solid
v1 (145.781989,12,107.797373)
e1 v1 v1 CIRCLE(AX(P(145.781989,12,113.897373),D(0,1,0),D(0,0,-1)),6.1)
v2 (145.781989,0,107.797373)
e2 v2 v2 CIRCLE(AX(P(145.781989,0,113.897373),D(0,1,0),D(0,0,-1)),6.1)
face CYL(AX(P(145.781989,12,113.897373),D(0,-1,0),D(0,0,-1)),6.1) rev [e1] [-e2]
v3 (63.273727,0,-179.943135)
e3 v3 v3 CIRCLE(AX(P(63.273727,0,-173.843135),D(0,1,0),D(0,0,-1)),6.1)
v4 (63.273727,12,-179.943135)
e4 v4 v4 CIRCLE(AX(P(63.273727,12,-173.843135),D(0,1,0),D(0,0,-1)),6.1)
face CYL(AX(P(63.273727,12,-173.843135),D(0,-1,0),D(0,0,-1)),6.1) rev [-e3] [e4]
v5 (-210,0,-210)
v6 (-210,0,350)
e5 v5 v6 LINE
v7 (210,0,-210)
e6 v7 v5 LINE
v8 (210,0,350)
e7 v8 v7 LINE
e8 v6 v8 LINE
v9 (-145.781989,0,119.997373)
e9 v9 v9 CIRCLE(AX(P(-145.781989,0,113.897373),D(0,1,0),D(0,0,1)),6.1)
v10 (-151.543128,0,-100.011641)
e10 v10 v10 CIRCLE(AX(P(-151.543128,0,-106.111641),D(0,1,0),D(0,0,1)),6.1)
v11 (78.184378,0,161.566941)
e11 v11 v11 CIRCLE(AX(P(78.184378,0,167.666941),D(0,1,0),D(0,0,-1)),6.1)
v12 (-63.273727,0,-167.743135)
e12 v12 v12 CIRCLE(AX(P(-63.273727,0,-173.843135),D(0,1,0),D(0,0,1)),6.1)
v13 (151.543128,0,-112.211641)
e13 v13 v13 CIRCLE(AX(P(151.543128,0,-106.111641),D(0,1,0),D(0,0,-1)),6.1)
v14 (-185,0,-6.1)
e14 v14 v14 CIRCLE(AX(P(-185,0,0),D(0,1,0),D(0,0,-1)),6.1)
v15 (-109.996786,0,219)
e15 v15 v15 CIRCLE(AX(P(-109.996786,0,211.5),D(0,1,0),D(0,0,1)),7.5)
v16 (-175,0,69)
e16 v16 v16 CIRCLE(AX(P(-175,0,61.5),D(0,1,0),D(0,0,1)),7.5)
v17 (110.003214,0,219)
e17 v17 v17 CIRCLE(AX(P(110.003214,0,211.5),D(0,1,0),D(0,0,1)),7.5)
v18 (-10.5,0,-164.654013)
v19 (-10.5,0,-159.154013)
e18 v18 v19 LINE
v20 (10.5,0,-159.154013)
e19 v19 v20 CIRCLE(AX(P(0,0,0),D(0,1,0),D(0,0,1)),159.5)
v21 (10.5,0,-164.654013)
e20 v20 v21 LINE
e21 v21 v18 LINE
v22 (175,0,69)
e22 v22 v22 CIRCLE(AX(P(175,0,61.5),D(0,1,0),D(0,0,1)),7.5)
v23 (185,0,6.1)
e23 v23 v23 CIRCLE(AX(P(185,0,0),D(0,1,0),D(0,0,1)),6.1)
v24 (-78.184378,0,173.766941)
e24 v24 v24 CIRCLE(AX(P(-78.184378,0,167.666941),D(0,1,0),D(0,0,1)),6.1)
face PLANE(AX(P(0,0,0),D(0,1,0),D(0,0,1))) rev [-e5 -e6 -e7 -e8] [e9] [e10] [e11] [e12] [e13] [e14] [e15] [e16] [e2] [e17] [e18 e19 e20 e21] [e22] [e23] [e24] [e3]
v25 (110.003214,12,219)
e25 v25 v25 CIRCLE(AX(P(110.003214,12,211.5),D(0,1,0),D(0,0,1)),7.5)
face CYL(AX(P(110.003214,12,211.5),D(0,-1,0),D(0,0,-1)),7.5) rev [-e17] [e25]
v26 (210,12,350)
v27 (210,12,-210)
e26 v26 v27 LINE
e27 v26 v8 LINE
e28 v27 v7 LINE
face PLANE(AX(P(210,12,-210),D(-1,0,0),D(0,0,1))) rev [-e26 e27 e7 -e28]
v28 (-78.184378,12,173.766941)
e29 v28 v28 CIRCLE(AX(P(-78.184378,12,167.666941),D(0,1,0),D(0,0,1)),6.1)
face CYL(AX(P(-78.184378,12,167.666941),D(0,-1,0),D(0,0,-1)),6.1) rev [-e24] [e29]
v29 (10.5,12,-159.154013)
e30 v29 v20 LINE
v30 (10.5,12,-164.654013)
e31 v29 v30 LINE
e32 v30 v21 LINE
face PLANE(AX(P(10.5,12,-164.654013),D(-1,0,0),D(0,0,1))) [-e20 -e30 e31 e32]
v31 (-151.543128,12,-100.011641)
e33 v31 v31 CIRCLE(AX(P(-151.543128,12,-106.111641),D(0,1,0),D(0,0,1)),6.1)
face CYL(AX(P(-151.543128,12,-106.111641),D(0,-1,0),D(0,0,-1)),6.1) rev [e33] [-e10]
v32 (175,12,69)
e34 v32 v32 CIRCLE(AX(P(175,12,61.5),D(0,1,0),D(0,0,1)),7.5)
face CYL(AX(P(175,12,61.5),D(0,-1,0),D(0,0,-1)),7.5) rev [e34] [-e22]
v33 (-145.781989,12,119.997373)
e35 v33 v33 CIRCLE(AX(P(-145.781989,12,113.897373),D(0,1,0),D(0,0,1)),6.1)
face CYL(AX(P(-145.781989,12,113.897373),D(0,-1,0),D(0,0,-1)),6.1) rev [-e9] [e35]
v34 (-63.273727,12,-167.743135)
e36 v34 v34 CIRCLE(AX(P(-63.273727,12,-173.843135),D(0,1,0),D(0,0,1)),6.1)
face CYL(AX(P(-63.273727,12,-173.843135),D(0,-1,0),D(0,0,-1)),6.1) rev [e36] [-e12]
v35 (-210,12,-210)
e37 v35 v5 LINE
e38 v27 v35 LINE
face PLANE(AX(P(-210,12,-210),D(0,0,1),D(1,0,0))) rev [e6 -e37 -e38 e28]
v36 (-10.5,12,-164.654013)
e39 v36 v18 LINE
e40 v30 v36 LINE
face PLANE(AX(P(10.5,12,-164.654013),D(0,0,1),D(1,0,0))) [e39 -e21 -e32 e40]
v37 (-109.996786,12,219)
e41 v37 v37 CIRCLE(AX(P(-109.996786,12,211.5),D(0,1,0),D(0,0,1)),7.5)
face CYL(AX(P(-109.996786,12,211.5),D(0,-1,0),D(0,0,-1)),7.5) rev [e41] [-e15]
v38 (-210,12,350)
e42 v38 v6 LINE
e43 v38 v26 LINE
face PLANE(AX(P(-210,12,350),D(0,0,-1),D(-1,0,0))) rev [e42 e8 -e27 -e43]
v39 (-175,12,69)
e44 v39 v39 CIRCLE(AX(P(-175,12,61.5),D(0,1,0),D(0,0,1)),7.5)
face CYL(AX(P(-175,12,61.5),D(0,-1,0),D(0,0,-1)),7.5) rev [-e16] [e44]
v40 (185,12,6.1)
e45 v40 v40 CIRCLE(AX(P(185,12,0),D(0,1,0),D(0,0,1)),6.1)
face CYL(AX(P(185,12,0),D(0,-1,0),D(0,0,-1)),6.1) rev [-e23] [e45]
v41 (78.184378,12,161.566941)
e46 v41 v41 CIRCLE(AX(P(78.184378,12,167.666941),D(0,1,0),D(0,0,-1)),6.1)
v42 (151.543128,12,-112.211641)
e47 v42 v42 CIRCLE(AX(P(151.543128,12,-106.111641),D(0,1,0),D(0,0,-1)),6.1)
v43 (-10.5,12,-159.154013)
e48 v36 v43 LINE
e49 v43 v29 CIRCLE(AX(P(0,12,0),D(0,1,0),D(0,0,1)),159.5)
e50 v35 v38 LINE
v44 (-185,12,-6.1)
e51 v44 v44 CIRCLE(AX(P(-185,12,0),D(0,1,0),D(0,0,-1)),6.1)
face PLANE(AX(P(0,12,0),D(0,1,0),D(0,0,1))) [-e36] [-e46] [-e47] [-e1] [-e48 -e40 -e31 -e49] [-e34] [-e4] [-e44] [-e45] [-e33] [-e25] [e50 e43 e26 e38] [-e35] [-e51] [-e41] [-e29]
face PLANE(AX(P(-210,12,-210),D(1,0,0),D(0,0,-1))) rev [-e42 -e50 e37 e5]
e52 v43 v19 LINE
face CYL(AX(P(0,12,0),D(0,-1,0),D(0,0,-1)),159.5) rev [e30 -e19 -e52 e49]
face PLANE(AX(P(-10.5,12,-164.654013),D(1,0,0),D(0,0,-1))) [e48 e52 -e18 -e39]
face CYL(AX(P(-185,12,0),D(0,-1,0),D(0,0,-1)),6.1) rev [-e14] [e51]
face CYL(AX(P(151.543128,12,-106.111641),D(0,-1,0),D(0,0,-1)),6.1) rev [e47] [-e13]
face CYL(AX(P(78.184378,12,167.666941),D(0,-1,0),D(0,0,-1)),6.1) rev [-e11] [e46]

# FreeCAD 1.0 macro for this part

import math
import FreeCAD as App
import Part
import Sketcher
Q = App.Units.Quantity


def add_polygon(sketch, points):
    """Adds a closed chain of lines whose ends are joined by coincident constraints."""
    first, n = sketch.GeometryCount, len(points)
    for a, b in zip(points, points[1:] + points[:1]):
        sketch.addGeometry(Part.LineSegment(App.Vector(*a, 0), App.Vector(*b, 0)), False)
    for i in range(n):
        sketch.addConstraint(Sketcher.Constraint("Coincident", first + i, 2, first + (i + 1) % n, 1))

doc = App.newDocument("Part")
body = doc.addObject("PartDesign::Body", "Body")

# Sketch on XZ plane
sketch1 = doc.addObject("Sketcher::SketchObject", "Sketch")
body.addObject(sketch1)
sketch1.AttachmentSupport = (doc.XZ_Plane, [""])
sketch1.MapMode = "FlatFace"
add_polygon(sketch1, [(-210, -210), (-210, 350), (210, 350), (210, -210)])  # lines 0-3
sketch1.addGeometry(Part.Circle(App.Vector(-109.996786, 211.5, 0), App.Vector(0, 0, 1), 7.5), False)  # 4
sketch1.addGeometry(Part.Circle(App.Vector(-78.184378, 167.666941, 0), App.Vector(0, 0, 1), 6.1), False)  # 5
sketch1.addGeometry(Part.Circle(App.Vector(-145.781989, 113.897373, 0), App.Vector(0, 0, 1), 6.1), False)  # 6
sketch1.addGeometry(Part.Circle(App.Vector(-175, 61.5, 0), App.Vector(0, 0, 1), 7.5), False)  # 7
sketch1.addGeometry(Part.Circle(App.Vector(78.184378, 167.666941, 0), App.Vector(0, 0, 1), 6.1), False)  # 8
sketch1.addGeometry(Part.Circle(App.Vector(110.003214, 211.5, 0), App.Vector(0, 0, 1), 7.5), False)  # 9
sketch1.addGeometry(Part.Circle(App.Vector(145.781989, 113.897373, 0), App.Vector(0, 0, 1), 6.1), False)  # 10
sketch1.addGeometry(Part.Circle(App.Vector(175, 61.5, 0), App.Vector(0, 0, 1), 7.5), False)  # 11
sketch1.addGeometry(Part.Circle(App.Vector(-185, 0, 0), App.Vector(0, 0, 1), 6.1), False)  # 12
sketch1.addGeometry(Part.Circle(App.Vector(-151.543128, -106.111641, 0), App.Vector(0, 0, 1), 6.1), False)  # 13
sketch1.addGeometry(Part.Circle(App.Vector(-63.273727, -173.843135, 0), App.Vector(0, 0, 1), 6.1), False)  # 14
sketch1.addGeometry(Part.LineSegment(App.Vector(-10.5, -164.654013, 0), App.Vector(10.5, -164.654013, 0)), False)  # 15
sketch1.addGeometry(Part.LineSegment(App.Vector(10.5, -164.654013, 0), App.Vector(10.5, -159.154013, 0)), False)  # 16
sketch1.addGeometry(Part.ArcOfCircle(Part.Circle(App.Vector(0, 0, 0), App.Vector(0, 0, 1), 159.5), math.radians(-86.225448), math.radians(266.225448)), False)  # 17
sketch1.addGeometry(Part.LineSegment(App.Vector(-10.5, -159.154013, 0), App.Vector(-10.5, -164.654013, 0)), False)  # 18
sketch1.addGeometry(Part.Circle(App.Vector(185, 0, 0), App.Vector(0, 0, 1), 6.1), False)  # 19
sketch1.addGeometry(Part.Circle(App.Vector(63.273727, -173.843135, 0), App.Vector(0, 0, 1), 6.1), False)  # 20
sketch1.addGeometry(Part.Circle(App.Vector(151.543128, -106.111641, 0), App.Vector(0, 0, 1), 6.1), False)  # 21
sketch1.addConstraint(Sketcher.Constraint("Coincident", 15, 2, 16, 1))
sketch1.addConstraint(Sketcher.Constraint("Coincident", 16, 2, 17, 1))
sketch1.addConstraint(Sketcher.Constraint("Coincident", 17, 2, 18, 1))
sketch1.addConstraint(Sketcher.Constraint("Coincident", 18, 2, 15, 1))
sketch1.addConstraint(Sketcher.Constraint("Vertical", 0))
sketch1.addConstraint(Sketcher.Constraint("Horizontal", 1))
sketch1.addConstraint(Sketcher.Constraint("Vertical", 2))
sketch1.addConstraint(Sketcher.Constraint("Horizontal", 3))
sketch1.addConstraint(Sketcher.Constraint("Horizontal", 15))
sketch1.addConstraint(Sketcher.Constraint("Vertical", 16))
sketch1.addConstraint(Sketcher.Constraint("Vertical", 18))
sketch1.addConstraint(Sketcher.Constraint("Coincident", 17, 3, -1, 1))
sketch1.addConstraint(Sketcher.Constraint("Equal", 5, 6))
sketch1.addConstraint(Sketcher.Constraint("Equal", 4, 7))
sketch1.addConstraint(Sketcher.Constraint("Equal", 6, 8))
sketch1.addConstraint(Sketcher.Constraint("Equal", 7, 9))
sketch1.addConstraint(Sketcher.Constraint("Equal", 8, 10))
sketch1.addConstraint(Sketcher.Constraint("Equal", 9, 11))
sketch1.addConstraint(Sketcher.Constraint("Equal", 10, 12))
sketch1.addConstraint(Sketcher.Constraint("Equal", 12, 13))
sketch1.addConstraint(Sketcher.Constraint("Equal", 13, 14))
sketch1.addConstraint(Sketcher.Constraint("Equal", 14, 19))
sketch1.addConstraint(Sketcher.Constraint("Equal", 19, 20))
sketch1.addConstraint(Sketcher.Constraint("Equal", 20, 21))
sketch1.addConstraint(Sketcher.Constraint("Symmetric", 12, 3, 19, 3, -1, 1))
sketch1.addConstraint(Sketcher.Constraint("Symmetric", 5, 3, 8, 3, -2))
sketch1.addConstraint(Sketcher.Constraint("Symmetric", 6, 3, 10, 3, -2))
sketch1.addConstraint(Sketcher.Constraint("Symmetric", 7, 3, 11, 3, -2))
sketch1.addConstraint(Sketcher.Constraint("Symmetric", 14, 3, 20, 3, -2))
sketch1.addConstraint(Sketcher.Constraint("Symmetric", 13, 3, 21, 3, -2))
sketch1.addConstraint(Sketcher.Constraint("PointOnObject", 12, 3, -1))
sketch1.addConstraint(Sketcher.Constraint("Horizontal", 4, 3, 9, 3))
sketch1.addConstraint(Sketcher.Constraint("Horizontal", 16, 2, 17, 2))
sketch1.addConstraint(Sketcher.Constraint("Diameter", 4, Q("15 mm")))
sketch1.addConstraint(Sketcher.Constraint("Diameter", 5, Q("12.2 mm")))
sketch1.addConstraint(Sketcher.Constraint("Radius", 17, Q("159.5 mm")))
sketch1.addConstraint(Sketcher.Constraint("DistanceX", 1, 1, 1, 2, Q("420 mm")))
sketch1.addConstraint(Sketcher.Constraint("DistanceX", 15, 1, 15, 2, Q("21 mm")))
sketch1.addConstraint(Sketcher.Constraint("DistanceY", 0, 1, 0, 2, Q("560 mm")))
sketch1.addConstraint(Sketcher.Constraint("DistanceY", 16, 1, 16, 2, Q("5.5 mm")))
sketch1.addConstraint(Sketcher.Constraint("DistanceX", 7, 3, -1, 1, Q("175 mm")))
sketch1.addConstraint(Sketcher.Constraint("DistanceX", 12, 3, -1, 1, Q("185 mm")))
sketch1.addConstraint(Sketcher.Constraint("DistanceX", 0, 2, -1, 1, Q("210 mm")))
sketch1.addConstraint(Sketcher.Constraint("DistanceY", -1, 1, 0, 2, Q("350 mm")))
sketch1.addConstraint(Sketcher.Constraint("DistanceY", 7, 3, 4, 3, Q("150 mm")))
sketch1.addConstraint(Sketcher.Constraint("DistanceX", 4, 3, 9, 3, Q("220 mm")))
sketch1.addConstraint(Sketcher.Constraint("DistanceY", -1, 1, 4, 3, Q("211.5 mm")))
sketch1.addConstraint(Sketcher.Constraint("DistanceX", 13, 3, 14, 3, Q("88.269402 mm")))
sketch1.addConstraint(Sketcher.Constraint("DistanceX", 5, 3, -1, 1, Q("78.184378 mm")))
sketch1.addConstraint(Sketcher.Constraint("DistanceY", -1, 1, 5, 3, Q("167.666941 mm")))
sketch1.addConstraint(Sketcher.Constraint("DistanceX", 6, 3, -1, 1, Q("145.781989 mm")))
sketch1.addConstraint(Sketcher.Constraint("DistanceX", 13, 3, -1, 1, Q("151.543128 mm")))
sketch1.addConstraint(Sketcher.Constraint("DistanceY", 13, 3, -1, 1, Q("106.111641 mm")))
sketch1.addConstraint(Sketcher.Constraint("DistanceY", 20, 3, 15, 2, Q("9.189121 mm")))
sketch1.addConstraint(Sketcher.Constraint("DistanceX", 4, 3, -1, 1, Q("109.996786 mm")))
sketch1.addConstraint(Sketcher.Constraint("DistanceY", -1, 1, 6, 3, Q("113.897373 mm")))
pad1 = doc.addObject("PartDesign::Pad", "Pad")
body.addObject(pad1)
pad1.Profile = sketch1
pad1.Length = 12
pad1.Reversed = True

doc.recompute()
